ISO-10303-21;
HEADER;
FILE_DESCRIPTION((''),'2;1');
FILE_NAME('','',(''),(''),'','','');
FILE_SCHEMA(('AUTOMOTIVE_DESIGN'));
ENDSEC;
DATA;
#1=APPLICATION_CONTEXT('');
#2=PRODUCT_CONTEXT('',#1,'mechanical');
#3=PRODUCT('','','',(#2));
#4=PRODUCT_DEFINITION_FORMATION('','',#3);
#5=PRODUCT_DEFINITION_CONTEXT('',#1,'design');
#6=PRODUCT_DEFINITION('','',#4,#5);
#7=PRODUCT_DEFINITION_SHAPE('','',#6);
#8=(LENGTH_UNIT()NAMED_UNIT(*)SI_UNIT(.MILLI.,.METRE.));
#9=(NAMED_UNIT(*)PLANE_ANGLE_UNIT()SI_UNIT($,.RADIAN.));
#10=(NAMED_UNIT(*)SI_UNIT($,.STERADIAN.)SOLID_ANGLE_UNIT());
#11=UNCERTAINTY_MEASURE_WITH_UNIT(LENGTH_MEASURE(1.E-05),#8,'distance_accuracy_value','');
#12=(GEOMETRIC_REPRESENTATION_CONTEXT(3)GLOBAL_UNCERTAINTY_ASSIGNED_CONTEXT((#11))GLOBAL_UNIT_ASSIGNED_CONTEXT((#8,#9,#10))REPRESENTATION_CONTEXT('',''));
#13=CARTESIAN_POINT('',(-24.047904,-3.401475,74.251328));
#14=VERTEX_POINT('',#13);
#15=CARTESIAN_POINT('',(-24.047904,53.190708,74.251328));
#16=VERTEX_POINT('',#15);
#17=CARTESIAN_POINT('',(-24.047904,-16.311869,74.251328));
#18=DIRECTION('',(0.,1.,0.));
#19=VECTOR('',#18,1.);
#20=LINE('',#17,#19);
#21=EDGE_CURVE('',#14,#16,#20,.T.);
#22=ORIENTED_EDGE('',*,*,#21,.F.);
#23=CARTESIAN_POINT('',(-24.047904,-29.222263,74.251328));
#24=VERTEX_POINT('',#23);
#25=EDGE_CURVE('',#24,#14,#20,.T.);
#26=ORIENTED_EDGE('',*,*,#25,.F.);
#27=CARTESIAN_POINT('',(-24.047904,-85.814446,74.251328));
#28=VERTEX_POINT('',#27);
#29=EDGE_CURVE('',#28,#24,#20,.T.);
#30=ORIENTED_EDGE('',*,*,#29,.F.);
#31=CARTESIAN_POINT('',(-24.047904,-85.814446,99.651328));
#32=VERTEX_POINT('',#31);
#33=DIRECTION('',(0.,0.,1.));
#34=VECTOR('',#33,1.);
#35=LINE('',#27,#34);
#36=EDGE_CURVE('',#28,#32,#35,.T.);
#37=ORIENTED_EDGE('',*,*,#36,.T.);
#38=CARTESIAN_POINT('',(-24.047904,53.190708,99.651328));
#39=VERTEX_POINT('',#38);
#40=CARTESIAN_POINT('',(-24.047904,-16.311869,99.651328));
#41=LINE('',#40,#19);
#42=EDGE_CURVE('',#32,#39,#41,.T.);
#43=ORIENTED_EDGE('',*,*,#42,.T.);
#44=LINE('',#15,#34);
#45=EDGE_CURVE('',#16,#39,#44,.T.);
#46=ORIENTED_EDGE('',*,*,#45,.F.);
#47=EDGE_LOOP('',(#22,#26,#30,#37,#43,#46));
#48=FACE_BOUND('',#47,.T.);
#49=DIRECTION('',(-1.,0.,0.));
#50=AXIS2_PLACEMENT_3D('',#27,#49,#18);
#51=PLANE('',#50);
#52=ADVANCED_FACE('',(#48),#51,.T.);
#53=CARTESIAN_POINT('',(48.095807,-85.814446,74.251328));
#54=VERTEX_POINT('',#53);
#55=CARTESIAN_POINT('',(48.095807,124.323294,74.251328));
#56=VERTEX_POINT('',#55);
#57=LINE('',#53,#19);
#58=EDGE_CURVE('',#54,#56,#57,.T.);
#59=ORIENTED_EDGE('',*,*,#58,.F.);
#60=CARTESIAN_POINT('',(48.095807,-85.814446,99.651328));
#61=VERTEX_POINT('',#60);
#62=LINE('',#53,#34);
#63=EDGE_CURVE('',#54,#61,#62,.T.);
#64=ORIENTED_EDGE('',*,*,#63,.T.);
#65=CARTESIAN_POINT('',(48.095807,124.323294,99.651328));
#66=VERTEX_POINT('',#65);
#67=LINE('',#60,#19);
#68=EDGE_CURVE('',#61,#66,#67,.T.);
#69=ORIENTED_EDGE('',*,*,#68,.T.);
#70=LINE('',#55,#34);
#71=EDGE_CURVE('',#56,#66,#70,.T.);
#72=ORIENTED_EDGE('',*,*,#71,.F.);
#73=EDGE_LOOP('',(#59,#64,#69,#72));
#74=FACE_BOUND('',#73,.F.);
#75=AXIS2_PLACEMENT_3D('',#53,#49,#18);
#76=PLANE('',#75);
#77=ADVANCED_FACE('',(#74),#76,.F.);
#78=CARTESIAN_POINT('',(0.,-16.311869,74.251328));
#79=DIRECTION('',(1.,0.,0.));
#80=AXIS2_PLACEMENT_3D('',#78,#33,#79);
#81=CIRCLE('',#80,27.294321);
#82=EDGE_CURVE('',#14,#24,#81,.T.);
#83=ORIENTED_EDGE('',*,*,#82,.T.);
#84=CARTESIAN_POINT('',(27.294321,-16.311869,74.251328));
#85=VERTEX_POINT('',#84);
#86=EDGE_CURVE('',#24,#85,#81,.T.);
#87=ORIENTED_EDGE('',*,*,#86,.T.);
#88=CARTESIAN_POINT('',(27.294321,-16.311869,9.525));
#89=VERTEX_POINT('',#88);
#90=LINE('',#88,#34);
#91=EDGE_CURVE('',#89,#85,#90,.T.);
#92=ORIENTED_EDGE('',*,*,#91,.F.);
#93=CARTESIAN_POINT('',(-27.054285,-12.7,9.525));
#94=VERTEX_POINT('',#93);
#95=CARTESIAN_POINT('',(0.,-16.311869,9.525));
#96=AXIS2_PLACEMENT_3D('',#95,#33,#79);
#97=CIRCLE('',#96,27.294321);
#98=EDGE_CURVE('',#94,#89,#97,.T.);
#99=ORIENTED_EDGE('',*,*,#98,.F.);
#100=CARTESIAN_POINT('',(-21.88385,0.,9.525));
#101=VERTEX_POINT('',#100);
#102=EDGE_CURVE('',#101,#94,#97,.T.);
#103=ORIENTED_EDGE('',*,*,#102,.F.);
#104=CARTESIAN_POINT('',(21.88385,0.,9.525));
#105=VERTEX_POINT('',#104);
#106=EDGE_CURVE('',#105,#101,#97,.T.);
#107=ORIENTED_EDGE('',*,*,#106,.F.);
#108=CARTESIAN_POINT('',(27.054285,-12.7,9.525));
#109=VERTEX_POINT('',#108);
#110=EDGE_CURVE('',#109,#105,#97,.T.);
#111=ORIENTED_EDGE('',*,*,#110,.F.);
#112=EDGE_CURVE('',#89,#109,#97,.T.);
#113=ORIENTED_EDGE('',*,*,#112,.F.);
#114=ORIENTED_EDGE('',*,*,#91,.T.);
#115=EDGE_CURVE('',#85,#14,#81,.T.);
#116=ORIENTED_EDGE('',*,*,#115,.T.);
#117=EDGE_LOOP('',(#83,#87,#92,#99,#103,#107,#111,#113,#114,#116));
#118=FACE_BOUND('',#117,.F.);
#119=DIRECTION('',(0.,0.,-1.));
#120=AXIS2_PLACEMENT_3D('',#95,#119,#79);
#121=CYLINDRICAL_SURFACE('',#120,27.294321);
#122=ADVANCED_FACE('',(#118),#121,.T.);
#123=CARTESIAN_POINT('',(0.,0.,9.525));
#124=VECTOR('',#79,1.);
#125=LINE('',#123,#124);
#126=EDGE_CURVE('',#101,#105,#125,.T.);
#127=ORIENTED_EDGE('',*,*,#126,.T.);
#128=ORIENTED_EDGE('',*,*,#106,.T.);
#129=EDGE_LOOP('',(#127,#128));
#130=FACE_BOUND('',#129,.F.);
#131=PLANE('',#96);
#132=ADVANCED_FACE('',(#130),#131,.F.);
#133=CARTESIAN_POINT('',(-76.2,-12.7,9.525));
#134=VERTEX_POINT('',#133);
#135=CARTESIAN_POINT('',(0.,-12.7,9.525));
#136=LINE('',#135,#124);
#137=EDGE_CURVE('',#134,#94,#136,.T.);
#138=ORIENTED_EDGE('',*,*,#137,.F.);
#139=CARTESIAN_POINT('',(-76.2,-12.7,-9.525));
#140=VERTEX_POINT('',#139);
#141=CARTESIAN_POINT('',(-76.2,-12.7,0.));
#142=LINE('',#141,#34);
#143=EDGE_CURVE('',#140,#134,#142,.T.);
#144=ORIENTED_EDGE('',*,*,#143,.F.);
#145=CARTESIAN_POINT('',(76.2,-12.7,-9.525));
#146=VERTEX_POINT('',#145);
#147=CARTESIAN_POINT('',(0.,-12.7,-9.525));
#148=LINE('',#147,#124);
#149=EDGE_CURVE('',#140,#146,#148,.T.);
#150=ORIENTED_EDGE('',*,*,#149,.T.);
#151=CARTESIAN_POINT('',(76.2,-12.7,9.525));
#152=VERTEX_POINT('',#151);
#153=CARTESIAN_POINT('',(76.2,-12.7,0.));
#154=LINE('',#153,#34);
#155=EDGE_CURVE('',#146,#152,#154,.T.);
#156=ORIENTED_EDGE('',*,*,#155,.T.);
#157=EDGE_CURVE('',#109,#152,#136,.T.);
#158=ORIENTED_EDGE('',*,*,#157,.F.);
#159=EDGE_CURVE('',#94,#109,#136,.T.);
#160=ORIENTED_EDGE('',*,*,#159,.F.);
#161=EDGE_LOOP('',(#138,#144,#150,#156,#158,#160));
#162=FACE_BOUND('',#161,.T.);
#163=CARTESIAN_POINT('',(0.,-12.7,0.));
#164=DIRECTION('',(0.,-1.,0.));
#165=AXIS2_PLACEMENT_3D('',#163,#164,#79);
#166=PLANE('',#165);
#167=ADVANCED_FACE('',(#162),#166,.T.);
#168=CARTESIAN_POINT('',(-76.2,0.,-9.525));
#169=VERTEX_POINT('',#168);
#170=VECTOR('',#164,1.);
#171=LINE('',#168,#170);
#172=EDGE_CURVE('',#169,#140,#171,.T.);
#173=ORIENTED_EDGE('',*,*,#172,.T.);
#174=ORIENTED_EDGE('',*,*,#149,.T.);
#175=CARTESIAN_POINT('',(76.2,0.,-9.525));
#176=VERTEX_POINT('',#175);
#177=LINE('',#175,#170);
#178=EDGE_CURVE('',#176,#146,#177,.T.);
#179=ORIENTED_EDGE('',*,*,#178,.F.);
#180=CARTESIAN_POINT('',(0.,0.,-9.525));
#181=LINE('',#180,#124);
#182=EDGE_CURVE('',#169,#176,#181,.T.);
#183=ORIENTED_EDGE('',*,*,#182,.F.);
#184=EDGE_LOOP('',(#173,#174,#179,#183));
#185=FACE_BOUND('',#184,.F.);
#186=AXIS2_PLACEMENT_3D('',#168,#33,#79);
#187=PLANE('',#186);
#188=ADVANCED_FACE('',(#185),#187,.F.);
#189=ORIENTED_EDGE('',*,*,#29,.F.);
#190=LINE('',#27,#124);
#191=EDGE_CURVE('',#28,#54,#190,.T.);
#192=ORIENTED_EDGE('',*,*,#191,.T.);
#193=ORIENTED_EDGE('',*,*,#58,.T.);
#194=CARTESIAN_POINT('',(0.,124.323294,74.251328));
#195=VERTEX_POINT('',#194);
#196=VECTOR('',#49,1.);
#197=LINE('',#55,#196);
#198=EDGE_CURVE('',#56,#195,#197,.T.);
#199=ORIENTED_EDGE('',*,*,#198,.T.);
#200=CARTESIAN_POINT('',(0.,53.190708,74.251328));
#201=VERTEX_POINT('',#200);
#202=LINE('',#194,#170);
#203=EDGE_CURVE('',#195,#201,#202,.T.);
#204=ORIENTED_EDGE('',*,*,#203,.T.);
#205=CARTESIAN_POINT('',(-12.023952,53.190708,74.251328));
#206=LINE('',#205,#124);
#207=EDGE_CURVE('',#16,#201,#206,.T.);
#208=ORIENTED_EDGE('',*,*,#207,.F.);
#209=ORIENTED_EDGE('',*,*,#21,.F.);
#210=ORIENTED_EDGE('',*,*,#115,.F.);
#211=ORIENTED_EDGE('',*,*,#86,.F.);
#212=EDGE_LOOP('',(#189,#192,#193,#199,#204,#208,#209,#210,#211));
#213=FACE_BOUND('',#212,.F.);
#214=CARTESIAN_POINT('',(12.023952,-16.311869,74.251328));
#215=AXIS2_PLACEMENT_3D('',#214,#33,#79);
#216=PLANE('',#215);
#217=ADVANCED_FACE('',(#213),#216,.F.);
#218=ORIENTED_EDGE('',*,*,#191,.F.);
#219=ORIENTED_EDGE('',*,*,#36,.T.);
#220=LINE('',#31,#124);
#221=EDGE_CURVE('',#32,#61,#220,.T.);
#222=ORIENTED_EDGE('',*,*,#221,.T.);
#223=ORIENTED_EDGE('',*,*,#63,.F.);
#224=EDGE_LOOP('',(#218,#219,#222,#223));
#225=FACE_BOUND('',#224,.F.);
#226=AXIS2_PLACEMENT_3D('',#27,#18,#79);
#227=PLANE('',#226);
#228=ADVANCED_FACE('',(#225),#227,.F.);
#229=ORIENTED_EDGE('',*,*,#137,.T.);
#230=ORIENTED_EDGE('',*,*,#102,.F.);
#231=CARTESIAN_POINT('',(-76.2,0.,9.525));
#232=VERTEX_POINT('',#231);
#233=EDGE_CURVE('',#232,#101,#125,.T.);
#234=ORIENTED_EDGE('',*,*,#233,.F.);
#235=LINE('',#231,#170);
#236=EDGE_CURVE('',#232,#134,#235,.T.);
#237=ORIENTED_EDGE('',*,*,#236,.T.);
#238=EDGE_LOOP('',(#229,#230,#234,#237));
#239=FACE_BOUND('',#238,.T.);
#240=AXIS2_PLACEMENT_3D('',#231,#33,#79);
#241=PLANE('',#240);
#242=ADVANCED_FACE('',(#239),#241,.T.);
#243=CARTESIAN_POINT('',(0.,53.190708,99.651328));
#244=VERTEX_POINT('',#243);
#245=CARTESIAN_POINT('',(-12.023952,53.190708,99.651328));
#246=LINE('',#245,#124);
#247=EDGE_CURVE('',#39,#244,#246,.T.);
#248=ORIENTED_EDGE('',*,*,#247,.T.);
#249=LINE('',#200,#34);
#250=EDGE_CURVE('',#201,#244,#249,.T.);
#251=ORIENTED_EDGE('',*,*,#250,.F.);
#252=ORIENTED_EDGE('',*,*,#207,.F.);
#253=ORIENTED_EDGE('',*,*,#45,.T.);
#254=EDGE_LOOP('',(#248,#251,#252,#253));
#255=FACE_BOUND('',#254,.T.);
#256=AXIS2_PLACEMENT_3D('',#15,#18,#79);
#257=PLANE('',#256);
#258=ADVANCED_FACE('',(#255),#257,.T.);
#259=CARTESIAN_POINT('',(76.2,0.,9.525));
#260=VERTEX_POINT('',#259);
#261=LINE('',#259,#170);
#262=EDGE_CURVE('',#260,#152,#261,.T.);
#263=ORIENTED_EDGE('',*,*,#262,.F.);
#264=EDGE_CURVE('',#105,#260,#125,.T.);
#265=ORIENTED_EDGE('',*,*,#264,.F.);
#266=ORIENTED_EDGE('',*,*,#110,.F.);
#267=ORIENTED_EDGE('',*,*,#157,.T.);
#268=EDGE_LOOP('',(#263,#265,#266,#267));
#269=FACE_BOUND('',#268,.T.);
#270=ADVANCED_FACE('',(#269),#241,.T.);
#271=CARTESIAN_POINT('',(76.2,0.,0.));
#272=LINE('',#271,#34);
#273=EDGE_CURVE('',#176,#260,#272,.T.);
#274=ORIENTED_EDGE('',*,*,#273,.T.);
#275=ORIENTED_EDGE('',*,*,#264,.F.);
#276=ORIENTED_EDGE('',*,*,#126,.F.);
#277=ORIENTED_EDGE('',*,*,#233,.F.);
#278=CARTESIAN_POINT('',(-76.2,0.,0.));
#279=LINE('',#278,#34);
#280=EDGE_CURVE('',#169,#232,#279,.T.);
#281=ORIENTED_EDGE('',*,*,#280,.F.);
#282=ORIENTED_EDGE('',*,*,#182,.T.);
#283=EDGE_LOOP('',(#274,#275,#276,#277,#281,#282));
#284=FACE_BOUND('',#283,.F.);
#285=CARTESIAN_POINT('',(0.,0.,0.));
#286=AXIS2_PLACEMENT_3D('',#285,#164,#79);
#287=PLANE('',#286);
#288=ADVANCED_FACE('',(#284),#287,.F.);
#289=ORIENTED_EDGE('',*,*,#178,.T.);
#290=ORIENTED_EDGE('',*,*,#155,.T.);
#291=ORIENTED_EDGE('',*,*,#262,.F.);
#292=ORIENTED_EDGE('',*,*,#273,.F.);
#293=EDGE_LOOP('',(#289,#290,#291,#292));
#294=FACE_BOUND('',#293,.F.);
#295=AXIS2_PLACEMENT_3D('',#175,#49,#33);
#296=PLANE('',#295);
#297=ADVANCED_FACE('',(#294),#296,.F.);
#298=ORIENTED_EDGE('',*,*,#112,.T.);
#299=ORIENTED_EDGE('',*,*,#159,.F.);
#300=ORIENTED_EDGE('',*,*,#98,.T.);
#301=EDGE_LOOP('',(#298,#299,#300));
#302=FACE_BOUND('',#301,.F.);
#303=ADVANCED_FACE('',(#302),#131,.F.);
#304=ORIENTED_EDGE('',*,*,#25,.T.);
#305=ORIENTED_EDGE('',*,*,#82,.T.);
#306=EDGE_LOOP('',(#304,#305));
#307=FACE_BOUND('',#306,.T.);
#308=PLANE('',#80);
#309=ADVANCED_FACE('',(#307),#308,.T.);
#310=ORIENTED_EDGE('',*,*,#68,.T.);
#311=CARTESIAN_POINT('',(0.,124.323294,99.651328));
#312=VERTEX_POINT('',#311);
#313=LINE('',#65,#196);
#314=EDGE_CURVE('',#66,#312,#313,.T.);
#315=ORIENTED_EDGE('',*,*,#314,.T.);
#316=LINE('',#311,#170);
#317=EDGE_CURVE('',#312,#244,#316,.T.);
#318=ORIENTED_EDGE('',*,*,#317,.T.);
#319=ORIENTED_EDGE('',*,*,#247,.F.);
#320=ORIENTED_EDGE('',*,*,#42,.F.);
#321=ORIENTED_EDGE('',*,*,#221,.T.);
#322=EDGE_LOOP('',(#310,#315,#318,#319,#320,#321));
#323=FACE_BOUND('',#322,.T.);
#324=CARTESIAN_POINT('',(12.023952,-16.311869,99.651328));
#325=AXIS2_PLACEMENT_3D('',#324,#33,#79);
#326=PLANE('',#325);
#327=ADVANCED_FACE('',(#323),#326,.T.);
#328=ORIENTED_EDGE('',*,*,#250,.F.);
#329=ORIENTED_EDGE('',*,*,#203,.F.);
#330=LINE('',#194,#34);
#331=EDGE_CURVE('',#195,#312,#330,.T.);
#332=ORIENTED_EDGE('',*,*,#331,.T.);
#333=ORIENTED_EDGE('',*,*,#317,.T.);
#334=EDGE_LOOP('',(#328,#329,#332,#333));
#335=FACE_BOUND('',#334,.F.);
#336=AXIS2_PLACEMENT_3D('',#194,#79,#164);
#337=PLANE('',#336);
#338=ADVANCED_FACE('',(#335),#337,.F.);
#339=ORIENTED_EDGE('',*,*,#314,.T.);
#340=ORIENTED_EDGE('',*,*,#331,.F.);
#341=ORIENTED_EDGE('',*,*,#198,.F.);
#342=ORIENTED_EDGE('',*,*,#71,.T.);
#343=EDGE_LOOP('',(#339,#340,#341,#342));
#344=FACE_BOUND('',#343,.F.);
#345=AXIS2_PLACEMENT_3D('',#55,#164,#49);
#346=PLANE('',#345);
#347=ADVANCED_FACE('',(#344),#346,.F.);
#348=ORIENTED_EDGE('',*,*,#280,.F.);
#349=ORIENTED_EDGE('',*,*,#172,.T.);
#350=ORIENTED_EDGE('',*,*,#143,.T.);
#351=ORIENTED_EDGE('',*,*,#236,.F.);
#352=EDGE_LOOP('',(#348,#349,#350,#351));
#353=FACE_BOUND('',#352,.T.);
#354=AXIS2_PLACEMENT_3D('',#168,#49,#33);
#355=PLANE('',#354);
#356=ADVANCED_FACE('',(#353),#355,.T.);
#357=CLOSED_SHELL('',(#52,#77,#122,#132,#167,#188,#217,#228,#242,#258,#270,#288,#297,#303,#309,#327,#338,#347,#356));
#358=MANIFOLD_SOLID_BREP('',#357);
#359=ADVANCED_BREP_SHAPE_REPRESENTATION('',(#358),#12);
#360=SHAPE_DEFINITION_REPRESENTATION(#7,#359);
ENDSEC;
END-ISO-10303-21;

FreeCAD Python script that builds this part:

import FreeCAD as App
import Part
import Sketcher
Q = App.Units.Quantity


def add_polygon(sketch, points):
    """Adds a closed chain of lines whose ends are joined by coincident constraints."""
    first, n = sketch.GeometryCount, len(points)
    for a, b in zip(points, points[1:] + points[:1]):
        sketch.addGeometry(Part.LineSegment(App.Vector(*a, 0), App.Vector(*b, 0)), False)
    for i in range(n):
        sketch.addConstraint(Sketcher.Constraint("Coincident", first + i, 2, first + (i + 1) % n, 1))

doc = App.newDocument("Part")
body = doc.addObject("PartDesign::Body", "Body")

# Sketch on XZ plane
sketch1 = body.newObject("Sketcher::SketchObject", "Sketch")
sketch1.AttachmentSupport = (doc.getObject("XZ_Plane"), [""])
sketch1.MapMode = "FlatFace"
add_polygon(sketch1, [(-76, 10), (-76, -10), (76, -10), (76, 10)])  # lines 0-3
sketch1.addConstraint([
    Sketcher.Constraint("Vertical", 0),
    Sketcher.Constraint("Horizontal", 1),
    Sketcher.Constraint("Vertical", 2),
    Sketcher.Constraint("Horizontal", 3),
    Sketcher.Constraint("Symmetric", 0, 2, 2, 2, -1, 1),
    Sketcher.Constraint("DistanceX", 1, 1, 1, 2, Q("6 in")),
    Sketcher.Constraint("DistanceY", 0, 2, 0, 1, Q("0.75 in")),
])
pad1 = body.newObject("PartDesign::Pad", "Pad")
pad1.Profile = sketch1
pad1.Length = Q("0.5 in")

# Sketch on XY plane
sketch2 = body.newObject("Sketcher::SketchObject", "Sketch001")
sketch2.AttachmentSupport = (doc.getObject("XY_Plane"), [""])
sketch2.MapMode = "FlatFace"
sketch2.AttachmentOffset = App.Placement(App.Vector(0, 0, 0.375 * 25.4), App.Rotation())
sketch2.addGeometry(Part.Circle(App.Vector(0, -16, 0), App.Vector(0, 0, 1), 27), False)
sketch2.addConstraint([
    Sketcher.Constraint("PointOnObject", 0, 3, -2),
    Sketcher.Constraint("Diameter", 0, Q("54.588642 mm")),
    Sketcher.Constraint("DistanceY", 0, 3, -1, 1, Q("16.311869 mm")),
])
pad2 = body.newObject("PartDesign::Pad", "Pad001")
pad2.Profile = sketch2
pad2.Length = 64.726328

# Sketch on XY plane
sketch3 = body.newObject("Sketcher::SketchObject", "Sketch002")
sketch3.AttachmentSupport = (doc.getObject("XY_Plane"), [""])
sketch3.MapMode = "FlatFace"
sketch3.AttachmentOffset = App.Placement(App.Vector(0, 0, 74.251328), App.Rotation())
add_polygon(sketch3, [(48, -86), (48, 124), (0, 124), (0, 53), (-24, 53), (-24, -86)])  # lines 0-5
sketch3.addConstraint([
    Sketcher.Constraint("Vertical", 0),
    Sketcher.Constraint("Horizontal", 1),
    Sketcher.Constraint("Vertical", 2),
    Sketcher.Constraint("Horizontal", 3),
    Sketcher.Constraint("Vertical", 4),
    Sketcher.Constraint("Horizontal", 5),
    Sketcher.Constraint("PointOnObject", 1, 2, -2),
    Sketcher.Constraint("DistanceX", 5, 1, 5, 2, Q("72.143711 mm")),
    Sketcher.Constraint("DistanceY", 0, 1, 0, 2, Q("210.13774 mm")),
    Sketcher.Constraint("DistanceX", 1, 2, 1, 1, Q("48.095807 mm")),
    Sketcher.Constraint("DistanceY", 2, 2, 2, 1, Q("71.132586 mm")),
    Sketcher.Constraint("DistanceY", -1, 1, 0, 2, Q("124.323294 mm")),
])
pad3 = body.newObject("PartDesign::Pad", "Pad002")
pad3.Profile = sketch3
pad3.Length = Q("1 in")

doc.recompute()
